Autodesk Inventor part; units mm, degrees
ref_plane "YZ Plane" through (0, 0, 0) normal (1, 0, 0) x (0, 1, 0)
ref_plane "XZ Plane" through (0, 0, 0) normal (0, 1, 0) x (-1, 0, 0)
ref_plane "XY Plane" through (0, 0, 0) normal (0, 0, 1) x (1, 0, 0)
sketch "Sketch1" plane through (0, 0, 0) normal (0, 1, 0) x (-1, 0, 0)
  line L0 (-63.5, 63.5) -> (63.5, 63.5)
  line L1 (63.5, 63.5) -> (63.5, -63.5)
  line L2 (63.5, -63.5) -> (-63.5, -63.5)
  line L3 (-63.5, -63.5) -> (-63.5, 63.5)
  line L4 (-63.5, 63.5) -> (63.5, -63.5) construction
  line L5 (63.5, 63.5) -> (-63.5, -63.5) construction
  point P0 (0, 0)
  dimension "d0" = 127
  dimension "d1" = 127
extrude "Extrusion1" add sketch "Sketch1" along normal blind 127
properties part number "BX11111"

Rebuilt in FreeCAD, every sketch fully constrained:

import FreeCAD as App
import Part
import Sketcher

V = App.Vector
Q = App.Units.Quantity

doc = App.newDocument("Part")
params = doc.addObject("Spreadsheet::Sheet", "Params")
for row, (alias, value) in enumerate([
    ("sketch1_width", "5 in"),
    ("pad1_length", "5 in"),
], start=1):
    params.set(f"A{row}", alias)
    params.set(f"B{row}", "=" + value)
    params.setAlias(f"B{row}", alias)

body = doc.addObject("PartDesign::Body", "Body")

# Sketch on XZ plane
sketch1 = doc.addObject("Sketcher::SketchObject", "Sketch")
body.addObject(sketch1)
sketch1.AttachmentSupport = (doc.XZ_Plane, [""])
sketch1.MapMode = "FlatFace"
sketch1.addGeometry(Part.LineSegment(V(-64, 64, 0), V(64, 64, 0)), False)
sketch1.addGeometry(Part.LineSegment(V(64, 64, 0), V(64, -64, 0)), False)
sketch1.addGeometry(Part.LineSegment(V(64, -64, 0), V(-64, -64, 0)), False)
sketch1.addGeometry(Part.LineSegment(V(-64, -64, 0), V(-64, 64, 0)), False)
sketch1.addConstraint(Sketcher.Constraint("Coincident", 0, 2, 1, 1))
sketch1.addConstraint(Sketcher.Constraint("Coincident", 1, 2, 2, 1))
sketch1.addConstraint(Sketcher.Constraint("Coincident", 2, 2, 3, 1))
sketch1.addConstraint(Sketcher.Constraint("Coincident", 3, 2, 0, 1))
sketch1.addConstraint(Sketcher.Constraint("Horizontal", 0))
sketch1.addConstraint(Sketcher.Constraint("Vertical", 1))
sketch1.addConstraint(Sketcher.Constraint("Horizontal", 2))
sketch1.addConstraint(Sketcher.Constraint("Vertical", 3))
sketch1.addConstraint(Sketcher.Constraint("Symmetric", 0, 2, 2, 2, -1, 1))
sketch1.addConstraint(Sketcher.Constraint("Equal", 2, 1))
sketch1.addConstraint(Sketcher.Constraint("DistanceX", 0, 1, 0, 2, Q("5 in")))
sketch1.setExpression("Constraints[10]", "Params.sketch1_width")
pad1 = doc.addObject("PartDesign::Pad", "Pad")
body.addObject(pad1)
pad1.Profile = sketch1
pad1.setExpression("Length", "Params.pad1_length")
pad1.Reversed = True

doc.recompute()
